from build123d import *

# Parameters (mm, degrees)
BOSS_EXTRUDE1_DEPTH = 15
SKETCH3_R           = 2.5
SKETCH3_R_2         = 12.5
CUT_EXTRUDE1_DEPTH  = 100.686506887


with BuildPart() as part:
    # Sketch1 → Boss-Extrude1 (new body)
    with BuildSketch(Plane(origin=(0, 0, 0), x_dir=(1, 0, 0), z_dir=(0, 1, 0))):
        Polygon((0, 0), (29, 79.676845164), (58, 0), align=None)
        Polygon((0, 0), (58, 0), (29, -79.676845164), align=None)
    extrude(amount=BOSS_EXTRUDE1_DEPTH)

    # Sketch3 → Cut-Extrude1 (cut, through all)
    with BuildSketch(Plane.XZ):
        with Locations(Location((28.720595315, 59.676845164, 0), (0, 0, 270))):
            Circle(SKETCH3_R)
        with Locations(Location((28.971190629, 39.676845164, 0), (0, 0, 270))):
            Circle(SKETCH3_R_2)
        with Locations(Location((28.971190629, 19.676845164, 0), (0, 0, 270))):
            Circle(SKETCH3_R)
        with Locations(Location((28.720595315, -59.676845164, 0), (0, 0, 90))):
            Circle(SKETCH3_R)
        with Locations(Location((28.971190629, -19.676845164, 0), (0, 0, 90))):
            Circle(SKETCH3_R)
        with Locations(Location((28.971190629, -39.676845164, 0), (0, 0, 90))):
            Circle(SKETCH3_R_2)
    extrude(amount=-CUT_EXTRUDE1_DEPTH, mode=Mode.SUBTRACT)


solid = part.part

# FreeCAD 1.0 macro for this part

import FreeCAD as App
import Part
import Sketcher
from FreeCAD import Vector
Q = App.Units.Quantity


def add_polygon(sketch, points):
    """Adds a closed chain of lines whose ends are joined by coincident constraints."""
    first, n = sketch.GeometryCount, len(points)
    for a, b in zip(points, points[1:] + points[:1]):
        sketch.addGeometry(Part.LineSegment(App.Vector(*a, 0), App.Vector(*b, 0)), False)
    for i in range(n):
        sketch.addConstraint(Sketcher.Constraint("Coincident", first + i, 2, first + (i + 1) % n, 1))

doc = App.newDocument("Part")
body = doc.addObject("PartDesign::Body", "Body")

# Sketch on XZ plane
sketch1 = body.newObject("Sketcher::SketchObject", "Sketch")
sketch1.AttachmentSupport = (doc.getObject("XZ_Plane"), [""])
sketch1.MapMode = "FlatFace"
add_polygon(sketch1, [(29, -80), (0, 0), (29, 80), (58, 0)])  # lines 0-3
sketch1.addConstraint(Sketcher.Constraint("Coincident", 0, 2, -1, 1))
sketch1.addConstraint(Sketcher.Constraint("Symmetric", 1, 2, 3, 2, -1))
sketch1.addConstraint(Sketcher.Constraint("PointOnObject", 2, 2, -1))
sketch1.addConstraint(Sketcher.Constraint("Parallel", 0, 2))
sketch1.addConstraint(Sketcher.Constraint("Angle", 0, Q("110 deg")))
sketch1.addConstraint(Sketcher.Constraint("DistanceX", -1, 1, 1, 2, 29.0))
pad1 = body.newObject("PartDesign::Pad", "Pad")
pad1.Profile = sketch1
pad1.Length = 15
pad1.Reversed = True

# Sketch on XZ plane
sketch2 = body.newObject("Sketcher::SketchObject", "Sketch001")
sketch2.AttachmentSupport = (doc.getObject("XZ_Plane"), [""])
sketch2.MapMode = "FlatFace"
sketch2.addGeometry(Part.Circle(Vector(28.7, 59.7, 0), Vector(0, 0, 1), 2.5), False)
sketch2.addGeometry(Part.Circle(Vector(29, 39.7, 0), Vector(0, 0, 1), 12.5), False)
sketch2.addGeometry(Part.Circle(Vector(29, 19.7, 0), Vector(0, 0, 1), 2.5), False)
sketch2.addGeometry(Part.Circle(Vector(28.7, -59.7, 0), Vector(0, 0, 1), 2.5), False)
sketch2.addGeometry(Part.Circle(Vector(29, -19.7, 0), Vector(0, 0, 1), 2.5), False)
sketch2.addGeometry(Part.Circle(Vector(29, -39.7, 0), Vector(0, 0, 1), 12.5), False)
sketch2.addConstraint(Sketcher.Constraint("Equal", 0, 2))
sketch2.addConstraint(Sketcher.Constraint("Equal", 2, 3))
sketch2.addConstraint(Sketcher.Constraint("Equal", 3, 4))
sketch2.addConstraint(Sketcher.Constraint("Equal", 1, 5))
sketch2.addConstraint(Sketcher.Constraint("Symmetric", 0, 3, 3, 3, -1))
sketch2.addConstraint(Sketcher.Constraint("Symmetric", 2, 3, 4, 3, -1))
sketch2.addConstraint(Sketcher.Constraint("Symmetric", 1, 3, 5, 3, -1))
sketch2.addConstraint(Sketcher.Constraint("Vertical", 1, 3, 2, 3))
sketch2.addConstraint(Sketcher.Constraint("Diameter", 0, 5.0))
sketch2.addConstraint(Sketcher.Constraint("Diameter", 1, 25.0))
sketch2.addConstraint(Sketcher.Constraint("DistanceY", 1, 3, 0, 3, 20.0))
sketch2.addConstraint(Sketcher.Constraint("DistanceY", 2, 3, 1, 3, 20.0))
sketch2.addConstraint(Sketcher.Constraint("DistanceX", -1, 1, 1, 3, 28.971191))
sketch2.addConstraint(Sketcher.Constraint("DistanceY", 3, 3, 2, 3, 79.35369))
sketch2.addConstraint(Sketcher.Constraint("DistanceX", -1, 1, 0, 3, 28.720595))
pocket1 = body.newObject("PartDesign::Pocket", "Pocket")
pocket1.Profile = sketch2
pocket1.Type = "ThroughAll"

doc.recompute()
